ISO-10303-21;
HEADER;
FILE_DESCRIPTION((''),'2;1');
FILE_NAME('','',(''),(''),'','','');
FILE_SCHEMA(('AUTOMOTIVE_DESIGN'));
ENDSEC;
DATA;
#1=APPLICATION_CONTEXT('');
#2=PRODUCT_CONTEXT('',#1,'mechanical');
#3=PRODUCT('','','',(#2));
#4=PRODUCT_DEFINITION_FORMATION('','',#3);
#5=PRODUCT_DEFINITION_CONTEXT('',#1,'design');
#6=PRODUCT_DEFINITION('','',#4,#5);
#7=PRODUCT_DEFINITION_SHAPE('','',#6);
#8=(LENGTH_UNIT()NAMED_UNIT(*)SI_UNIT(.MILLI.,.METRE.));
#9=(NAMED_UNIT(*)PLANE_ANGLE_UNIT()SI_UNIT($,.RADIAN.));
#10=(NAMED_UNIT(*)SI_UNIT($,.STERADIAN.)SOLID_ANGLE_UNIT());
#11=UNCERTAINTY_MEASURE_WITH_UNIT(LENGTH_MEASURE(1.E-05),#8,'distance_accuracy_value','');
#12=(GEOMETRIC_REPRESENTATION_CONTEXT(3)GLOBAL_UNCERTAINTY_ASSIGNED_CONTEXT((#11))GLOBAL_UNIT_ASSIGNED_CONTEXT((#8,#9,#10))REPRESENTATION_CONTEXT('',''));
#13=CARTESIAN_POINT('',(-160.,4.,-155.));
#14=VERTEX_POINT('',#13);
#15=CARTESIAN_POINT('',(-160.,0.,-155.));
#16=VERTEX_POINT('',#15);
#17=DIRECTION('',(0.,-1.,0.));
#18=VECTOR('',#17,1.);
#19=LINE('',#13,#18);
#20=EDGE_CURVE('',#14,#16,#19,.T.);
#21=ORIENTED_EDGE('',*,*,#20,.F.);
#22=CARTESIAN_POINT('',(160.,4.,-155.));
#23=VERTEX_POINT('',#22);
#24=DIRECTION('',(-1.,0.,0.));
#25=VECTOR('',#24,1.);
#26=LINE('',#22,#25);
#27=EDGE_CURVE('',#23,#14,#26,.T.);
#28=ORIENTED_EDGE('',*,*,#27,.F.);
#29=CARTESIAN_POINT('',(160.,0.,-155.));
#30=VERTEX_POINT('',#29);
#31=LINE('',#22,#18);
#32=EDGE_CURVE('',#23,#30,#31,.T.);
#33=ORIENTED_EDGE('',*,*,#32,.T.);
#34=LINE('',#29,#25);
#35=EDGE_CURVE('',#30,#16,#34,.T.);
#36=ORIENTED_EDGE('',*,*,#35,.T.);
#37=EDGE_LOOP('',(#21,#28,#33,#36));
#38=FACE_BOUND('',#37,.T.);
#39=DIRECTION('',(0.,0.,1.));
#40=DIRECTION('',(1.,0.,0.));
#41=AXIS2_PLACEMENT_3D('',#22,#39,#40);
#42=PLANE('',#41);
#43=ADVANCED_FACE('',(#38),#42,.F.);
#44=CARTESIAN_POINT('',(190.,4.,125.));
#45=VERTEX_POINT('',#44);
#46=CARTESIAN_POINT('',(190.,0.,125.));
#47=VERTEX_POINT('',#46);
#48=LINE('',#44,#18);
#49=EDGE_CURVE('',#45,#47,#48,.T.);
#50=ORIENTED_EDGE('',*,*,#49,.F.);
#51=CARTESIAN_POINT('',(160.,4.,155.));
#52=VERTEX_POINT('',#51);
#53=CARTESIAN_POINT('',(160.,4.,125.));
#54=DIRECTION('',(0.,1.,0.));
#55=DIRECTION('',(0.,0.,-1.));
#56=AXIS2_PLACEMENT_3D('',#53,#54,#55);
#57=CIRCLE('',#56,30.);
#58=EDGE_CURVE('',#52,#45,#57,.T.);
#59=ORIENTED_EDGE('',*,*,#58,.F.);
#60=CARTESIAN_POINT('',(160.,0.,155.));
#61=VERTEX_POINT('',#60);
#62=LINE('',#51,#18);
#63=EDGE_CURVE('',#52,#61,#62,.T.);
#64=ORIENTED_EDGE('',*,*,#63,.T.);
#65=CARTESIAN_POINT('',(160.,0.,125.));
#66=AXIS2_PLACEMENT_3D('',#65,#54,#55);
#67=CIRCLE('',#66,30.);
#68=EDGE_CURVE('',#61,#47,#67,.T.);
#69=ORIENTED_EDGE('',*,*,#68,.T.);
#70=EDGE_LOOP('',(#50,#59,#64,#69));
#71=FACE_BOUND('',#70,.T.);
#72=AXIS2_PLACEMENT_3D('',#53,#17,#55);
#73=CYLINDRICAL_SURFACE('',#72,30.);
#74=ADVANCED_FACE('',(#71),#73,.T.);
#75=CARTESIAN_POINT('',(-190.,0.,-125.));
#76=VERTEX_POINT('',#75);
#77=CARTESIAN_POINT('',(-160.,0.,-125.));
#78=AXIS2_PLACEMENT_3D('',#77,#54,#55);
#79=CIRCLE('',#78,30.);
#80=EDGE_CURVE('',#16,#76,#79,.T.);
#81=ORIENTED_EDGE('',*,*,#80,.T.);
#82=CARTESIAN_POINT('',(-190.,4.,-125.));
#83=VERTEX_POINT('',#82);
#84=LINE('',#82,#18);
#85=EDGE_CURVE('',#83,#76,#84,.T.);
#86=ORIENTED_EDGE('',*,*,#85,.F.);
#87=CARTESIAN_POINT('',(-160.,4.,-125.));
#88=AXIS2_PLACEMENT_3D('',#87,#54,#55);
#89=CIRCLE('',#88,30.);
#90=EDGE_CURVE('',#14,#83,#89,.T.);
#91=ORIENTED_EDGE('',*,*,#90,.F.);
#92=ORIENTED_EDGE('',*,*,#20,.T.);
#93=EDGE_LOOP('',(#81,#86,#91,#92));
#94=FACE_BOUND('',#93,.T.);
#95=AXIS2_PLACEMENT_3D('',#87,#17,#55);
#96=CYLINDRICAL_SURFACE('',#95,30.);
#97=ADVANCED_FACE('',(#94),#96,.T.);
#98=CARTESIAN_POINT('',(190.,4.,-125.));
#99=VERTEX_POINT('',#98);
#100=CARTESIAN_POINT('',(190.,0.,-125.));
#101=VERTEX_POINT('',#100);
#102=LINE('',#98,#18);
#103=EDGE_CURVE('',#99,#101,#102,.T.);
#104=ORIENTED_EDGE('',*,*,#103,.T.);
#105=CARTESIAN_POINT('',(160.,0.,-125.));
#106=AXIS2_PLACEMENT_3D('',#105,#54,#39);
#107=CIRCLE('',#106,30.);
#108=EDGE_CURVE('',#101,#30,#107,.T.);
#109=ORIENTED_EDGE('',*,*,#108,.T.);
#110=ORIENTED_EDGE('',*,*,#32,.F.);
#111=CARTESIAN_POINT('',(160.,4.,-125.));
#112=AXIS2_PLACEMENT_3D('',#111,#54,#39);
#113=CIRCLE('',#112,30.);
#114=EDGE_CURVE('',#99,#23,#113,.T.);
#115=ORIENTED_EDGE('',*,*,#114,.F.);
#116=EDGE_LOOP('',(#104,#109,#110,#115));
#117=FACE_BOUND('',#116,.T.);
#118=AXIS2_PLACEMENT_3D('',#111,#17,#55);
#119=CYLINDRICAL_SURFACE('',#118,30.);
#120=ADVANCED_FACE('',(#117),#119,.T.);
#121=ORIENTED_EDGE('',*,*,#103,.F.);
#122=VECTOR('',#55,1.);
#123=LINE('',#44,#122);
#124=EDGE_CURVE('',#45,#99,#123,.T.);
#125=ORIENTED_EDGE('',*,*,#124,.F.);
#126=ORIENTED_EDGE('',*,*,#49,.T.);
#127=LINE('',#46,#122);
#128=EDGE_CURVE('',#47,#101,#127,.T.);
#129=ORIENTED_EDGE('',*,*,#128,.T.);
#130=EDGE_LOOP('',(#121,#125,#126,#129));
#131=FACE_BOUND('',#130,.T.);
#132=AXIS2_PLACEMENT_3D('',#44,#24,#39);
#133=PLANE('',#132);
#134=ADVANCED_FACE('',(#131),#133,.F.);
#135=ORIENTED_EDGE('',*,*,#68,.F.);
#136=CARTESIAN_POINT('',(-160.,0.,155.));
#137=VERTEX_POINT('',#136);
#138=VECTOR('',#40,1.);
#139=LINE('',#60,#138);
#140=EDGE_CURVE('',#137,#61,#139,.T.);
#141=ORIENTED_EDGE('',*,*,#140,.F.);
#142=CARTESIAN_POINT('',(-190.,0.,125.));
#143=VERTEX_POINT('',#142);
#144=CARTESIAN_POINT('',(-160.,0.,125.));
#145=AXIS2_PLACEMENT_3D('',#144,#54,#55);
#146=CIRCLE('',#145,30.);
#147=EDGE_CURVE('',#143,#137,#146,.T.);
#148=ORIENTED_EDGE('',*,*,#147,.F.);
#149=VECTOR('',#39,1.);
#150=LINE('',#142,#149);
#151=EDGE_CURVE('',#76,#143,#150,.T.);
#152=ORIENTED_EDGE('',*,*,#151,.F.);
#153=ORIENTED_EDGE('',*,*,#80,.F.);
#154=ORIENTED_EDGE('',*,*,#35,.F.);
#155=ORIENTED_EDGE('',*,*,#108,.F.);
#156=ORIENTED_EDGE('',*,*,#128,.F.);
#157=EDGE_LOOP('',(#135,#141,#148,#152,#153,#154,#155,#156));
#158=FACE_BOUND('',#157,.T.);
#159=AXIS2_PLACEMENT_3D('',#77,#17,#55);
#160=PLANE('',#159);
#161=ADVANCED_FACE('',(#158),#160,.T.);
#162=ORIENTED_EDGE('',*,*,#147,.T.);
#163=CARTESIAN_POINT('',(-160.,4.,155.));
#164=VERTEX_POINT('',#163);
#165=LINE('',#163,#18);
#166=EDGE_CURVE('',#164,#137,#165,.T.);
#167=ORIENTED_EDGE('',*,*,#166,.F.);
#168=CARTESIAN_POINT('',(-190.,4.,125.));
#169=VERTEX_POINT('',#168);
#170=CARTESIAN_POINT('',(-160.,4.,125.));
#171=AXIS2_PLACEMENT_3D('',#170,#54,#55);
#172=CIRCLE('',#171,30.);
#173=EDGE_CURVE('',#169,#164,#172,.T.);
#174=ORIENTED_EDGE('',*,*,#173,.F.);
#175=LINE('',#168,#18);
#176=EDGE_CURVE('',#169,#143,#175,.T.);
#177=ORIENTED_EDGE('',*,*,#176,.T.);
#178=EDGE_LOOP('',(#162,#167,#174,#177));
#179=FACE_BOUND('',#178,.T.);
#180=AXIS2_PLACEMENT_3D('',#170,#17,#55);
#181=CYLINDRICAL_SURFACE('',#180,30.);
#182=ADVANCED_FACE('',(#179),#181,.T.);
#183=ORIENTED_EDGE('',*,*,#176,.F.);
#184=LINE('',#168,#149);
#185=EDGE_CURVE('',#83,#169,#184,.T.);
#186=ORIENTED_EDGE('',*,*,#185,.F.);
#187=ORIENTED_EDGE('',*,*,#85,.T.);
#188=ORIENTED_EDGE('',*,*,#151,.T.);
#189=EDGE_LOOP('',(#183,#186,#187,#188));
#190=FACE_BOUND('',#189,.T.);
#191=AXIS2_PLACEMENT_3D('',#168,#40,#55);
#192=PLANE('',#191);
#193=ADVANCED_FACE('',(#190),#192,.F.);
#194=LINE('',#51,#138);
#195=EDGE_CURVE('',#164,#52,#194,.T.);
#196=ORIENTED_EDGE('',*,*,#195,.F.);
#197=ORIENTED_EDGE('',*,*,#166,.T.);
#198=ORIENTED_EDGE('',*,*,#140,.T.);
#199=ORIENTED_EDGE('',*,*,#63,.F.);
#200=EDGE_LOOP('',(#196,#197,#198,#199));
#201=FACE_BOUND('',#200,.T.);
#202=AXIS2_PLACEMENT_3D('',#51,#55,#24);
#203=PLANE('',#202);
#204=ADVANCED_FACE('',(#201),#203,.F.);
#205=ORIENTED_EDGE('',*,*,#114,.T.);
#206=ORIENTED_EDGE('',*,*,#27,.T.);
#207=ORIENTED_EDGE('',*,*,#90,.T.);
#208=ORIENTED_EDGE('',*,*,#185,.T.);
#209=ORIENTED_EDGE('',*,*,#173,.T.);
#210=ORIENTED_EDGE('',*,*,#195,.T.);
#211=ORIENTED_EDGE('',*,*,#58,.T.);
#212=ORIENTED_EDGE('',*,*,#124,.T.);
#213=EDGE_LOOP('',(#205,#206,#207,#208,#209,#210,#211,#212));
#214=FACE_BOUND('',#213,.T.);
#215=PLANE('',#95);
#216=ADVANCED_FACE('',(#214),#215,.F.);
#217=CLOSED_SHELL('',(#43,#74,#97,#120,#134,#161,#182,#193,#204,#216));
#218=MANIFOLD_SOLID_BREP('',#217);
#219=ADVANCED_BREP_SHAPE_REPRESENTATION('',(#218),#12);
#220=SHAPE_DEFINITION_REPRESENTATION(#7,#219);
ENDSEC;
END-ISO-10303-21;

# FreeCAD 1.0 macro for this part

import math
import FreeCAD as App
import Part
import Sketcher

doc = App.newDocument("Part")
params = doc.addObject("Spreadsheet::Sheet", "Params")
for row, (alias, value) in enumerate([
    ("sketch1_radius", "30 mm"),
    ("sketch1_width", "320 mm"),
    ("sketch1_height", "250 mm"),
    ("pad1_length", "4 mm"),
], start=1):
    params.set(f"A{row}", alias)
    params.set(f"B{row}", "=" + value)
    params.setAlias(f"B{row}", alias)

body = doc.addObject("PartDesign::Body", "Body")

# Sketch on XZ plane
sketch1 = doc.addObject("Sketcher::SketchObject", "Sketch")
body.addObject(sketch1)
sketch1.AttachmentSupport = (doc.XZ_Plane, [""])
sketch1.MapMode = "FlatFace"
sketch1.addGeometry([
    Part.LineSegment(App.Vector(-160, 155, 0), App.Vector(160, 155, 0)),  # 0
    Part.ArcOfCircle(Part.Circle(App.Vector(160, 125, 0), App.Vector(0, 0, 1), 30), math.radians(0), math.radians(90)),  # 1
    Part.LineSegment(App.Vector(190, 125, 0), App.Vector(190, -125, 0)),  # 2
    Part.ArcOfCircle(Part.Circle(App.Vector(160, -125, 0), App.Vector(0, 0, 1), 30), math.radians(-90), math.radians(0)),  # 3
    Part.LineSegment(App.Vector(160, -155, 0), App.Vector(-160, -155, 0)),  # 4
    Part.ArcOfCircle(Part.Circle(App.Vector(-160, -125, 0), App.Vector(0, 0, 1), 30), math.radians(180), math.radians(270)),  # 5
    Part.LineSegment(App.Vector(-190, -125, 0), App.Vector(-190, 125, 0)),  # 6
    Part.ArcOfCircle(Part.Circle(App.Vector(-160, 125, 0), App.Vector(0, 0, 1), 30), math.radians(90), math.radians(180)),  # 7
], False)
sketch1.addConstraint([
    Sketcher.Constraint("Tangent", 0, 2, 1, 2),
    Sketcher.Constraint("Tangent", 1, 1, 2, 1),
    Sketcher.Constraint("Tangent", 2, 2, 3, 2),
    Sketcher.Constraint("Tangent", 3, 1, 4, 1),
    Sketcher.Constraint("Tangent", 4, 2, 5, 2),
    Sketcher.Constraint("Tangent", 5, 1, 6, 1),
    Sketcher.Constraint("Tangent", 6, 2, 7, 2),
    Sketcher.Constraint("Tangent", 7, 1, 0, 1),
    Sketcher.Constraint("Horizontal", 0),
    Sketcher.Constraint("Vertical", 2),
    Sketcher.Constraint("Horizontal", 4),
    Sketcher.Constraint("Vertical", 6),
    Sketcher.Constraint("Equal", 1, 3),
    Sketcher.Constraint("Equal", 3, 5),
    Sketcher.Constraint("Equal", 5, 7),
    Sketcher.Constraint("Symmetric", 1, 3, 5, 3, -1, 1),
    Sketcher.Constraint("Radius", 1, 30.0),
    Sketcher.Constraint("DistanceX", 0, 1, 0, 2, 320.0),
    Sketcher.Constraint("DistanceY", 2, 2, 2, 1, 250.0),
])
sketch1.setExpression("Constraints[16]", "Params.sketch1_radius")
sketch1.setExpression("Constraints[17]", "Params.sketch1_width")
sketch1.setExpression("Constraints[18]", "Params.sketch1_height")
pad1 = doc.addObject("PartDesign::Pad", "Pad")
body.addObject(pad1)
pad1.Profile = sketch1
pad1.setExpression("Length", "Params.pad1_length")
pad1.Reversed = True

doc.recompute()
